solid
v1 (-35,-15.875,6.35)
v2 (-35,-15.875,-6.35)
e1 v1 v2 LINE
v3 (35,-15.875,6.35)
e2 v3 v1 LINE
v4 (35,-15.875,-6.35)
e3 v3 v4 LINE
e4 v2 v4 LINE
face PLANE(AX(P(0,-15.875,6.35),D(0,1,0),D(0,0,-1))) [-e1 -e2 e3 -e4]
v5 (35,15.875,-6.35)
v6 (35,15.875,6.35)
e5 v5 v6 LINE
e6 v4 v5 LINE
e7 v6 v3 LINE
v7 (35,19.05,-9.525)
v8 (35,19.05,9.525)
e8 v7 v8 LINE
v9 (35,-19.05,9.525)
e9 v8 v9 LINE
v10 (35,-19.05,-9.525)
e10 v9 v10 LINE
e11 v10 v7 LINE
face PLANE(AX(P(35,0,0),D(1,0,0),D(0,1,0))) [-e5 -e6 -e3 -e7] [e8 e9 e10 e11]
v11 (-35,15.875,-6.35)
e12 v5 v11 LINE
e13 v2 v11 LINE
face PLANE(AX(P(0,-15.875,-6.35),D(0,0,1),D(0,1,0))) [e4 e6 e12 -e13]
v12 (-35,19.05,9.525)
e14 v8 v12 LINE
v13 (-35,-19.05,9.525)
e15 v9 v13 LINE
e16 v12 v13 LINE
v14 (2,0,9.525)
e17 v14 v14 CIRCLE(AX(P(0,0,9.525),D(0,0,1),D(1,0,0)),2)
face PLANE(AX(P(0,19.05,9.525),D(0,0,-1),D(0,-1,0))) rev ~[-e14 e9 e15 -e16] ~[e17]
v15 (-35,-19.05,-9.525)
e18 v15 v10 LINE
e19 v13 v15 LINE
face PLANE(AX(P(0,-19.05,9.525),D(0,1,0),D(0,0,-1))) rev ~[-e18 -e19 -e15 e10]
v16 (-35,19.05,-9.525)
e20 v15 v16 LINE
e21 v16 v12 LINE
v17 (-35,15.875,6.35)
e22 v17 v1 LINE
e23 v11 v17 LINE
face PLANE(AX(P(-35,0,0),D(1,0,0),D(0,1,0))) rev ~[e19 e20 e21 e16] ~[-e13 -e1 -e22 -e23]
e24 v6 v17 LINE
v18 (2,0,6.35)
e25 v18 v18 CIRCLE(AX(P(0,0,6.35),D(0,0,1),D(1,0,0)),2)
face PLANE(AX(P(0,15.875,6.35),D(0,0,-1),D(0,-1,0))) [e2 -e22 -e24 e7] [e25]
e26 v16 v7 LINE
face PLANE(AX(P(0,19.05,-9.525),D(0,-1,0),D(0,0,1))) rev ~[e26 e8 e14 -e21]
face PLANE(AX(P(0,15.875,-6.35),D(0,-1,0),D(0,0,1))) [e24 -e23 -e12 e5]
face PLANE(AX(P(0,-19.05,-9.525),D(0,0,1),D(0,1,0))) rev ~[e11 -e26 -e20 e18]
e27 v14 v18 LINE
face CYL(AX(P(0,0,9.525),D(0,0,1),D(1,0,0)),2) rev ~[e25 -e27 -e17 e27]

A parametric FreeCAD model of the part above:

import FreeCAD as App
import Part
import Sketcher

V = App.Vector
Q = App.Units.Quantity

doc = App.newDocument("Part")
body = doc.addObject("PartDesign::Body", "Body")

# Sketch on YZ plane
sketch1 = body.newObject("Sketcher::SketchObject", "Sketch")
sketch1.AttachmentSupport = (doc.getObject("YZ_Plane"), [""])
sketch1.MapMode = "FlatFace"
sketch1.addGeometry([
    Part.LineSegment(V(-19.05, 9.525, 0), V(-19.05, -9.525, 0)),  # 0
    Part.LineSegment(V(-19.05, -9.525, 0), V(19.05, -9.525, 0)),  # 1
    Part.LineSegment(V(19.05, -9.525, 0), V(19.05, 9.525, 0)),  # 2
    Part.LineSegment(V(19.05, 9.525, 0), V(-19.05, 9.525, 0)),  # 3
    Part.LineSegment(V(15.875, -6.35, 0), V(-15.875, -6.35, 0)),  # 4
    Part.LineSegment(V(-15.875, -6.35, 0), V(-15.875, 6.35, 0)),  # 5
    Part.LineSegment(V(-15.875, 6.35, 0), V(15.875, 6.35, 0)),  # 6
    Part.LineSegment(V(15.875, 6.35, 0), V(15.875, -6.35, 0)),  # 7
], False)
sketch1.addConstraint([
    Sketcher.Constraint("Coincident", 0, 2, 1, 1),
    Sketcher.Constraint("Coincident", 1, 2, 2, 1),
    Sketcher.Constraint("Coincident", 2, 2, 3, 1),
    Sketcher.Constraint("Coincident", 3, 2, 0, 1),
    Sketcher.Constraint("Coincident", 4, 2, 5, 1),
    Sketcher.Constraint("Coincident", 5, 2, 6, 1),
    Sketcher.Constraint("Coincident", 6, 2, 7, 1),
    Sketcher.Constraint("Coincident", 7, 2, 4, 1),
    Sketcher.Constraint("Vertical", 0),
    Sketcher.Constraint("Horizontal", 1),
    Sketcher.Constraint("Vertical", 2),
    Sketcher.Constraint("Horizontal", 3),
    Sketcher.Constraint("Horizontal", 4),
    Sketcher.Constraint("Vertical", 5),
    Sketcher.Constraint("Horizontal", 6),
    Sketcher.Constraint("Vertical", 7),
    Sketcher.Constraint("Symmetric", 0, 2, 2, 2, -1, 1),
    Sketcher.Constraint("Symmetric", 4, 2, 6, 2, -1, 1),
    Sketcher.Constraint("DistanceX", 1, 1, 1, 2, Q("1.5 in")),
    Sketcher.Constraint("DistanceY", 0, 2, 0, 1, Q("0.75 in")),
    Sketcher.Constraint("DistanceY", 5, 1, 5, 2, Q("0.5 in")),
    Sketcher.Constraint("DistanceX", 0, 2, 4, 2, Q("0.125 in")),
])
pad1 = body.newObject("PartDesign::Pad", "Pad")
pad1.Profile = sketch1
pad1.Length = Q("2.7559055 in")
pad1.Midplane = True

# Sketch on XY plane
sketch2 = body.newObject("Sketcher::SketchObject", "Sketch001")
sketch2.AttachmentSupport = (doc.getObject("XY_Plane"), [""])
sketch2.MapMode = "FlatFace"
sketch2.AttachmentOffset = App.Placement(V(0, 0, 0.375 * 25.4), App.Rotation())
sketch2.addGeometry(Part.Circle(V(0, 0, 0), V(0, 0, 1), 2), False)
sketch2.addConstraint([
    Sketcher.Constraint("Coincident", 0, 3, -1, 1),
    Sketcher.Constraint("Diameter", 0, Q("4 mm")),
])
pocket1 = body.newObject("PartDesign::Pocket", "Pocket")
pocket1.Profile = sketch2
pocket1.Length = Q("0.3937008 in")

doc.recompute()
